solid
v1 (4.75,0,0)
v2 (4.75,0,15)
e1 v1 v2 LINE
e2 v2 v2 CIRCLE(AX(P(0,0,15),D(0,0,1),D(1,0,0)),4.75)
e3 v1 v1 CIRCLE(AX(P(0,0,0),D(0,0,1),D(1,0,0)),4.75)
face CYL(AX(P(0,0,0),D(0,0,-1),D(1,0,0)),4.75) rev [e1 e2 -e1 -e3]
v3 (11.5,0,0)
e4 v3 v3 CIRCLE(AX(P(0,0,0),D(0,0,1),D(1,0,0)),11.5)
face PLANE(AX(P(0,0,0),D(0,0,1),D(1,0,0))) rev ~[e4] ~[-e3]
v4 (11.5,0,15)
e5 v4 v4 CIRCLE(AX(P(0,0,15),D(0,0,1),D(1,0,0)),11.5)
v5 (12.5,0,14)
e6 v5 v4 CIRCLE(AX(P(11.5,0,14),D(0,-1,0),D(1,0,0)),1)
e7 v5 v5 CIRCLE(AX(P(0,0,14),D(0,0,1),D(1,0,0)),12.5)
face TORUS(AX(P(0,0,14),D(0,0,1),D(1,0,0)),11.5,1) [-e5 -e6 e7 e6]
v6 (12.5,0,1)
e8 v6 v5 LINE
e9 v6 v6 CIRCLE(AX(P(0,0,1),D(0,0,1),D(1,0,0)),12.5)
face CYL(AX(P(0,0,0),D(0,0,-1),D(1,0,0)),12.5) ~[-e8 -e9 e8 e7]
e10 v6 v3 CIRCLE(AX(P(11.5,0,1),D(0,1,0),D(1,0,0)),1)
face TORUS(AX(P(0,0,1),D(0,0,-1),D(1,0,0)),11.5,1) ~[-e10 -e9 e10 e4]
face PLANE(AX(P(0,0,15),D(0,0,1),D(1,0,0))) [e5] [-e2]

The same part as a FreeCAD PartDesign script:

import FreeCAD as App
import Part
import Sketcher
from FreeCAD import Vector


def edges_at(feature, points):
    """Names of the edges that pass closest to the given points."""
    edges = feature.Shape.Edges
    near = lambda p: min(range(len(edges)), key=lambda i: edges[i].distToShape(Part.Vertex(*p))[0])
    return sorted({f"Edge{near(p) + 1}" for p in points})

doc = App.newDocument("Part")
body = doc.addObject("PartDesign::Body", "Body")

sketch1 = doc.addObject("Sketcher::SketchObject", "Sketch")
body.addObject(sketch1)
sketch1.AttachmentSupport = (doc.XY_Plane, [""])
sketch1.MapMode = "FlatFace"
sketch1.addGeometry(Part.Circle(Vector(0, 0, 0), Vector(0, 0, 1), 12.5), False)
sketch1.addGeometry(Part.Circle(Vector(0, 0, 0), Vector(0, 0, 1), 4.8), False)
sketch1.addConstraint(Sketcher.Constraint("Coincident", 0, 3, -1, 1))
sketch1.addConstraint(Sketcher.Constraint("Coincident", 1, 3, -1, 1))
sketch1.addConstraint(Sketcher.Constraint("Diameter", 0, 25.0))
sketch1.addConstraint(Sketcher.Constraint("Diameter", 1, 9.5))
pad1 = doc.addObject("PartDesign::Pad", "Pad")
body.addObject(pad1)
pad1.Profile = sketch1
pad1.Length = 15
doc.recompute()

fillet = doc.addObject("PartDesign::Fillet", "Fillet")
body.addObject(fillet)
fillet.Base = (pad1, edges_at(pad1, [(-12.5, 0, 15), (-12.5, 0, 0)]))
fillet.Radius = 1

doc.recompute()
